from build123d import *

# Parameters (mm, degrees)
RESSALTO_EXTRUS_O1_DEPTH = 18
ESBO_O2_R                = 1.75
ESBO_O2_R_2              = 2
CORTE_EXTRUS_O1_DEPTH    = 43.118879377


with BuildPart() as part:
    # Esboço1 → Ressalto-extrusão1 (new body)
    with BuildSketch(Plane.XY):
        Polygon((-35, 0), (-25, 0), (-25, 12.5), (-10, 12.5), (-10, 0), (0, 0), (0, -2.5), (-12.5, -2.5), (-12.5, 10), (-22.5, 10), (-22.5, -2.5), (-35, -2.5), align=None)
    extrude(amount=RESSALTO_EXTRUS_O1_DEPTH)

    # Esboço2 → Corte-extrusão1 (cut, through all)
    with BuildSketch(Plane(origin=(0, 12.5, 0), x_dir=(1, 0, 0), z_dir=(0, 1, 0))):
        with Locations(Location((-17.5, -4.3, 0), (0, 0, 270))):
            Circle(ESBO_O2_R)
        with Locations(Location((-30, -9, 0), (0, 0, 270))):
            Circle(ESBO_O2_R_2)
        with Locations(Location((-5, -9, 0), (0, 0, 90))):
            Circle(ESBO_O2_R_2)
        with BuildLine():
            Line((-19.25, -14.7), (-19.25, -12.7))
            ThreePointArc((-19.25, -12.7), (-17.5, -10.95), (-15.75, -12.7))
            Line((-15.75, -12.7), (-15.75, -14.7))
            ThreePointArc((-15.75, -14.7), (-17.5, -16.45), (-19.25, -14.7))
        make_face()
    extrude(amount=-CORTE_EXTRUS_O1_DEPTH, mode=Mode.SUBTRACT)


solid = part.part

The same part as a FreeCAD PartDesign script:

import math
import FreeCAD as App
import Part
import Sketcher

V = App.Vector
Q = App.Units.Quantity


def add_polygon(sketch, points):
    """Adds a closed chain of lines whose ends are joined by coincident constraints."""
    first, n = sketch.GeometryCount, len(points)
    for a, b in zip(points, points[1:] + points[:1]):
        sketch.addGeometry(Part.LineSegment(App.Vector(*a, 0), App.Vector(*b, 0)), False)
    for i in range(n):
        sketch.addConstraint(Sketcher.Constraint("Coincident", first + i, 2, first + (i + 1) % n, 1))

doc = App.newDocument("Part")
params = doc.addObject("Spreadsheet::Sheet", "Params")
for row, (alias, value) in enumerate([
    ("sketch1_width", "10 mm"),
    ("sketch1_width2", "15 mm"),
    ("sketch1_height", "2.5 mm"),
    ("pad1_length", "18 mm"),
    ("sketch2_diameter", "4 mm"),
    ("sketch2_diameter2", "3.5 mm"),
    ("sketch2_height", "2 mm"),
], start=1):
    params.set(f"A{row}", alias)
    params.set(f"B{row}", "=" + value)
    params.setAlias(f"B{row}", alias)

body = doc.addObject("PartDesign::Body", "Body")

sketch1 = body.newObject("Sketcher::SketchObject", "Sketch")
sketch1.AttachmentSupport = (doc.getObject("XY_Plane"), [""])
sketch1.MapMode = "FlatFace"
add_polygon(sketch1, [(-25, 0), (-35, 0), (-35, -2.5), (-22.5, -2.5), (-22.5, 10), (-12.5, 10), (-12.5, -2.5), (0, -2.5), (0, 0), (-10, 0), (-10, 12.5), (-25, 12.5)])
sketch1.addConstraint(Sketcher.Constraint("Horizontal", 0))
sketch1.addConstraint(Sketcher.Constraint("Vertical", 1))
sketch1.addConstraint(Sketcher.Constraint("Horizontal", 2))
sketch1.addConstraint(Sketcher.Constraint("Vertical", 3))
sketch1.addConstraint(Sketcher.Constraint("Horizontal", 4))
sketch1.addConstraint(Sketcher.Constraint("Vertical", 5))
sketch1.addConstraint(Sketcher.Constraint("Horizontal", 6))
sketch1.addConstraint(Sketcher.Constraint("Vertical", 7))
sketch1.addConstraint(Sketcher.Constraint("Horizontal", 8))
sketch1.addConstraint(Sketcher.Constraint("Vertical", 9))
sketch1.addConstraint(Sketcher.Constraint("Horizontal", 10))
sketch1.addConstraint(Sketcher.Constraint("Vertical", 11))
sketch1.addConstraint(Sketcher.Constraint("Coincident", 7, 2, -1, 1))
sketch1.addConstraint(Sketcher.Constraint("PointOnObject", 0, 2, -1))
sketch1.addConstraint(Sketcher.Constraint("Horizontal", 2, 2, 5, 2))
sketch1.addConstraint(Sketcher.Constraint("Equal", 0, 4))
sketch1.addConstraint(Sketcher.Constraint("Equal", 2, 6))
sketch1.addConstraint(Sketcher.Constraint("Equal", 4, 8))
sketch1.addConstraint(Sketcher.Constraint("Equal", 6, 3))
sketch1.addConstraint(Sketcher.Constraint("Equal", 5, 9))
sketch1.addConstraint(Sketcher.Constraint("DistanceX", 0, 2, 0, 1, Q("10 mm")))
sketch1.addConstraint(Sketcher.Constraint("DistanceX", 10, 2, 10, 1, Q("15 mm")))
sketch1.addConstraint(Sketcher.Constraint("DistanceY", 1, 2, 1, 1, Q("2.5 mm")))
sketch1.setExpression("Constraints[32]", "Params.sketch1_width")
sketch1.setExpression("Constraints[33]", "Params.sketch1_width2")
sketch1.setExpression("Constraints[34]", "Params.sketch1_height")
pad1 = body.newObject("PartDesign::Pad", "Pad")
pad1.Profile = sketch1
pad1.setExpression("Length", "Params.pad1_length")

sketch2 = body.newObject("Sketcher::SketchObject", "Sketch001")
sketch2.AttachmentSupport = (doc.getObject("XZ_Plane"), [""])
sketch2.MapMode = "FlatFace"
sketch2.AttachmentOffset = App.Placement(V(0, 0, -12.5), App.Rotation())
sketch2.addGeometry(Part.Circle(V(-17.5, 4.3, 0), V(0, 0, 1), 1.8), False)
sketch2.addGeometry(Part.Circle(V(-30, 9, 0), V(0, 0, 1), 2), False)
sketch2.addGeometry(Part.Circle(V(-5, 9, 0), V(0, 0, 1), 2), False)
sketch2.addGeometry(Part.LineSegment(V(-19.2, 12.7, 0), V(-19.2, 14.7, 0)), False)
sketch2.addGeometry(Part.ArcOfCircle(Part.Circle(V(-17.5, 14.7, 0), V(0, 0, 1), 1.8), math.radians(0), math.radians(180)), False)
sketch2.addGeometry(Part.LineSegment(V(-15.8, 14.7, 0), V(-15.8, 12.7, 0)), False)
sketch2.addGeometry(Part.ArcOfCircle(Part.Circle(V(-17.5, 12.7, 0), V(0, 0, 1), 1.8), math.radians(180), math.radians(360)), False)
sketch2.addConstraint(Sketcher.Constraint("Tangent", 3, 2, 4, 2))
sketch2.addConstraint(Sketcher.Constraint("Tangent", 4, 1, 5, 1))
sketch2.addConstraint(Sketcher.Constraint("Tangent", 5, 2, 6, 2))
sketch2.addConstraint(Sketcher.Constraint("Tangent", 6, 1, 3, 1))
sketch2.addConstraint(Sketcher.Constraint("Vertical", 3))
sketch2.addConstraint(Sketcher.Constraint("Vertical", 5))
sketch2.addConstraint(Sketcher.Constraint("Equal", 1, 2))
sketch2.addConstraint(Sketcher.Constraint("Equal", 0, 4))
sketch2.addConstraint(Sketcher.Constraint("Horizontal", 1, 3, 2, 3))
sketch2.addConstraint(Sketcher.Constraint("Vertical", 0, 3, 4, 3))
sketch2.addConstraint(Sketcher.Constraint("Diameter", 1, Q("4 mm")))
sketch2.addConstraint(Sketcher.Constraint("Diameter", 0, Q("3.5 mm")))
sketch2.addConstraint(Sketcher.Constraint("DistanceY", 3, 1, 3, 2, Q("2 mm")))
sketch2.addConstraint(Sketcher.Constraint("DistanceX", 1, 3, -1, 1, Q("30 mm")))
sketch2.addConstraint(Sketcher.Constraint("DistanceY", -1, 1, 1, 3, Q("9 mm")))
sketch2.addConstraint(Sketcher.Constraint("DistanceX", 2, 3, -1, 1, Q("5 mm")))
sketch2.addConstraint(Sketcher.Constraint("DistanceX", 0, 3, -1, 1, Q("17.5 mm")))
sketch2.addConstraint(Sketcher.Constraint("DistanceY", -1, 1, 0, 3, Q("4.3 mm")))
sketch2.addConstraint(Sketcher.Constraint("DistanceY", -1, 1, 4, 3, Q("14.7 mm")))
sketch2.setExpression("Constraints[10]", "Params.sketch2_diameter")
sketch2.setExpression("Constraints[11]", "Params.sketch2_diameter2")
sketch2.setExpression("Constraints[12]", "Params.sketch2_height")
pocket1 = body.newObject("PartDesign::Pocket", "Pocket")
pocket1.Profile = sketch2
pocket1.Type = "ThroughAll"
pocket1.Reversed = True

doc.recompute()
